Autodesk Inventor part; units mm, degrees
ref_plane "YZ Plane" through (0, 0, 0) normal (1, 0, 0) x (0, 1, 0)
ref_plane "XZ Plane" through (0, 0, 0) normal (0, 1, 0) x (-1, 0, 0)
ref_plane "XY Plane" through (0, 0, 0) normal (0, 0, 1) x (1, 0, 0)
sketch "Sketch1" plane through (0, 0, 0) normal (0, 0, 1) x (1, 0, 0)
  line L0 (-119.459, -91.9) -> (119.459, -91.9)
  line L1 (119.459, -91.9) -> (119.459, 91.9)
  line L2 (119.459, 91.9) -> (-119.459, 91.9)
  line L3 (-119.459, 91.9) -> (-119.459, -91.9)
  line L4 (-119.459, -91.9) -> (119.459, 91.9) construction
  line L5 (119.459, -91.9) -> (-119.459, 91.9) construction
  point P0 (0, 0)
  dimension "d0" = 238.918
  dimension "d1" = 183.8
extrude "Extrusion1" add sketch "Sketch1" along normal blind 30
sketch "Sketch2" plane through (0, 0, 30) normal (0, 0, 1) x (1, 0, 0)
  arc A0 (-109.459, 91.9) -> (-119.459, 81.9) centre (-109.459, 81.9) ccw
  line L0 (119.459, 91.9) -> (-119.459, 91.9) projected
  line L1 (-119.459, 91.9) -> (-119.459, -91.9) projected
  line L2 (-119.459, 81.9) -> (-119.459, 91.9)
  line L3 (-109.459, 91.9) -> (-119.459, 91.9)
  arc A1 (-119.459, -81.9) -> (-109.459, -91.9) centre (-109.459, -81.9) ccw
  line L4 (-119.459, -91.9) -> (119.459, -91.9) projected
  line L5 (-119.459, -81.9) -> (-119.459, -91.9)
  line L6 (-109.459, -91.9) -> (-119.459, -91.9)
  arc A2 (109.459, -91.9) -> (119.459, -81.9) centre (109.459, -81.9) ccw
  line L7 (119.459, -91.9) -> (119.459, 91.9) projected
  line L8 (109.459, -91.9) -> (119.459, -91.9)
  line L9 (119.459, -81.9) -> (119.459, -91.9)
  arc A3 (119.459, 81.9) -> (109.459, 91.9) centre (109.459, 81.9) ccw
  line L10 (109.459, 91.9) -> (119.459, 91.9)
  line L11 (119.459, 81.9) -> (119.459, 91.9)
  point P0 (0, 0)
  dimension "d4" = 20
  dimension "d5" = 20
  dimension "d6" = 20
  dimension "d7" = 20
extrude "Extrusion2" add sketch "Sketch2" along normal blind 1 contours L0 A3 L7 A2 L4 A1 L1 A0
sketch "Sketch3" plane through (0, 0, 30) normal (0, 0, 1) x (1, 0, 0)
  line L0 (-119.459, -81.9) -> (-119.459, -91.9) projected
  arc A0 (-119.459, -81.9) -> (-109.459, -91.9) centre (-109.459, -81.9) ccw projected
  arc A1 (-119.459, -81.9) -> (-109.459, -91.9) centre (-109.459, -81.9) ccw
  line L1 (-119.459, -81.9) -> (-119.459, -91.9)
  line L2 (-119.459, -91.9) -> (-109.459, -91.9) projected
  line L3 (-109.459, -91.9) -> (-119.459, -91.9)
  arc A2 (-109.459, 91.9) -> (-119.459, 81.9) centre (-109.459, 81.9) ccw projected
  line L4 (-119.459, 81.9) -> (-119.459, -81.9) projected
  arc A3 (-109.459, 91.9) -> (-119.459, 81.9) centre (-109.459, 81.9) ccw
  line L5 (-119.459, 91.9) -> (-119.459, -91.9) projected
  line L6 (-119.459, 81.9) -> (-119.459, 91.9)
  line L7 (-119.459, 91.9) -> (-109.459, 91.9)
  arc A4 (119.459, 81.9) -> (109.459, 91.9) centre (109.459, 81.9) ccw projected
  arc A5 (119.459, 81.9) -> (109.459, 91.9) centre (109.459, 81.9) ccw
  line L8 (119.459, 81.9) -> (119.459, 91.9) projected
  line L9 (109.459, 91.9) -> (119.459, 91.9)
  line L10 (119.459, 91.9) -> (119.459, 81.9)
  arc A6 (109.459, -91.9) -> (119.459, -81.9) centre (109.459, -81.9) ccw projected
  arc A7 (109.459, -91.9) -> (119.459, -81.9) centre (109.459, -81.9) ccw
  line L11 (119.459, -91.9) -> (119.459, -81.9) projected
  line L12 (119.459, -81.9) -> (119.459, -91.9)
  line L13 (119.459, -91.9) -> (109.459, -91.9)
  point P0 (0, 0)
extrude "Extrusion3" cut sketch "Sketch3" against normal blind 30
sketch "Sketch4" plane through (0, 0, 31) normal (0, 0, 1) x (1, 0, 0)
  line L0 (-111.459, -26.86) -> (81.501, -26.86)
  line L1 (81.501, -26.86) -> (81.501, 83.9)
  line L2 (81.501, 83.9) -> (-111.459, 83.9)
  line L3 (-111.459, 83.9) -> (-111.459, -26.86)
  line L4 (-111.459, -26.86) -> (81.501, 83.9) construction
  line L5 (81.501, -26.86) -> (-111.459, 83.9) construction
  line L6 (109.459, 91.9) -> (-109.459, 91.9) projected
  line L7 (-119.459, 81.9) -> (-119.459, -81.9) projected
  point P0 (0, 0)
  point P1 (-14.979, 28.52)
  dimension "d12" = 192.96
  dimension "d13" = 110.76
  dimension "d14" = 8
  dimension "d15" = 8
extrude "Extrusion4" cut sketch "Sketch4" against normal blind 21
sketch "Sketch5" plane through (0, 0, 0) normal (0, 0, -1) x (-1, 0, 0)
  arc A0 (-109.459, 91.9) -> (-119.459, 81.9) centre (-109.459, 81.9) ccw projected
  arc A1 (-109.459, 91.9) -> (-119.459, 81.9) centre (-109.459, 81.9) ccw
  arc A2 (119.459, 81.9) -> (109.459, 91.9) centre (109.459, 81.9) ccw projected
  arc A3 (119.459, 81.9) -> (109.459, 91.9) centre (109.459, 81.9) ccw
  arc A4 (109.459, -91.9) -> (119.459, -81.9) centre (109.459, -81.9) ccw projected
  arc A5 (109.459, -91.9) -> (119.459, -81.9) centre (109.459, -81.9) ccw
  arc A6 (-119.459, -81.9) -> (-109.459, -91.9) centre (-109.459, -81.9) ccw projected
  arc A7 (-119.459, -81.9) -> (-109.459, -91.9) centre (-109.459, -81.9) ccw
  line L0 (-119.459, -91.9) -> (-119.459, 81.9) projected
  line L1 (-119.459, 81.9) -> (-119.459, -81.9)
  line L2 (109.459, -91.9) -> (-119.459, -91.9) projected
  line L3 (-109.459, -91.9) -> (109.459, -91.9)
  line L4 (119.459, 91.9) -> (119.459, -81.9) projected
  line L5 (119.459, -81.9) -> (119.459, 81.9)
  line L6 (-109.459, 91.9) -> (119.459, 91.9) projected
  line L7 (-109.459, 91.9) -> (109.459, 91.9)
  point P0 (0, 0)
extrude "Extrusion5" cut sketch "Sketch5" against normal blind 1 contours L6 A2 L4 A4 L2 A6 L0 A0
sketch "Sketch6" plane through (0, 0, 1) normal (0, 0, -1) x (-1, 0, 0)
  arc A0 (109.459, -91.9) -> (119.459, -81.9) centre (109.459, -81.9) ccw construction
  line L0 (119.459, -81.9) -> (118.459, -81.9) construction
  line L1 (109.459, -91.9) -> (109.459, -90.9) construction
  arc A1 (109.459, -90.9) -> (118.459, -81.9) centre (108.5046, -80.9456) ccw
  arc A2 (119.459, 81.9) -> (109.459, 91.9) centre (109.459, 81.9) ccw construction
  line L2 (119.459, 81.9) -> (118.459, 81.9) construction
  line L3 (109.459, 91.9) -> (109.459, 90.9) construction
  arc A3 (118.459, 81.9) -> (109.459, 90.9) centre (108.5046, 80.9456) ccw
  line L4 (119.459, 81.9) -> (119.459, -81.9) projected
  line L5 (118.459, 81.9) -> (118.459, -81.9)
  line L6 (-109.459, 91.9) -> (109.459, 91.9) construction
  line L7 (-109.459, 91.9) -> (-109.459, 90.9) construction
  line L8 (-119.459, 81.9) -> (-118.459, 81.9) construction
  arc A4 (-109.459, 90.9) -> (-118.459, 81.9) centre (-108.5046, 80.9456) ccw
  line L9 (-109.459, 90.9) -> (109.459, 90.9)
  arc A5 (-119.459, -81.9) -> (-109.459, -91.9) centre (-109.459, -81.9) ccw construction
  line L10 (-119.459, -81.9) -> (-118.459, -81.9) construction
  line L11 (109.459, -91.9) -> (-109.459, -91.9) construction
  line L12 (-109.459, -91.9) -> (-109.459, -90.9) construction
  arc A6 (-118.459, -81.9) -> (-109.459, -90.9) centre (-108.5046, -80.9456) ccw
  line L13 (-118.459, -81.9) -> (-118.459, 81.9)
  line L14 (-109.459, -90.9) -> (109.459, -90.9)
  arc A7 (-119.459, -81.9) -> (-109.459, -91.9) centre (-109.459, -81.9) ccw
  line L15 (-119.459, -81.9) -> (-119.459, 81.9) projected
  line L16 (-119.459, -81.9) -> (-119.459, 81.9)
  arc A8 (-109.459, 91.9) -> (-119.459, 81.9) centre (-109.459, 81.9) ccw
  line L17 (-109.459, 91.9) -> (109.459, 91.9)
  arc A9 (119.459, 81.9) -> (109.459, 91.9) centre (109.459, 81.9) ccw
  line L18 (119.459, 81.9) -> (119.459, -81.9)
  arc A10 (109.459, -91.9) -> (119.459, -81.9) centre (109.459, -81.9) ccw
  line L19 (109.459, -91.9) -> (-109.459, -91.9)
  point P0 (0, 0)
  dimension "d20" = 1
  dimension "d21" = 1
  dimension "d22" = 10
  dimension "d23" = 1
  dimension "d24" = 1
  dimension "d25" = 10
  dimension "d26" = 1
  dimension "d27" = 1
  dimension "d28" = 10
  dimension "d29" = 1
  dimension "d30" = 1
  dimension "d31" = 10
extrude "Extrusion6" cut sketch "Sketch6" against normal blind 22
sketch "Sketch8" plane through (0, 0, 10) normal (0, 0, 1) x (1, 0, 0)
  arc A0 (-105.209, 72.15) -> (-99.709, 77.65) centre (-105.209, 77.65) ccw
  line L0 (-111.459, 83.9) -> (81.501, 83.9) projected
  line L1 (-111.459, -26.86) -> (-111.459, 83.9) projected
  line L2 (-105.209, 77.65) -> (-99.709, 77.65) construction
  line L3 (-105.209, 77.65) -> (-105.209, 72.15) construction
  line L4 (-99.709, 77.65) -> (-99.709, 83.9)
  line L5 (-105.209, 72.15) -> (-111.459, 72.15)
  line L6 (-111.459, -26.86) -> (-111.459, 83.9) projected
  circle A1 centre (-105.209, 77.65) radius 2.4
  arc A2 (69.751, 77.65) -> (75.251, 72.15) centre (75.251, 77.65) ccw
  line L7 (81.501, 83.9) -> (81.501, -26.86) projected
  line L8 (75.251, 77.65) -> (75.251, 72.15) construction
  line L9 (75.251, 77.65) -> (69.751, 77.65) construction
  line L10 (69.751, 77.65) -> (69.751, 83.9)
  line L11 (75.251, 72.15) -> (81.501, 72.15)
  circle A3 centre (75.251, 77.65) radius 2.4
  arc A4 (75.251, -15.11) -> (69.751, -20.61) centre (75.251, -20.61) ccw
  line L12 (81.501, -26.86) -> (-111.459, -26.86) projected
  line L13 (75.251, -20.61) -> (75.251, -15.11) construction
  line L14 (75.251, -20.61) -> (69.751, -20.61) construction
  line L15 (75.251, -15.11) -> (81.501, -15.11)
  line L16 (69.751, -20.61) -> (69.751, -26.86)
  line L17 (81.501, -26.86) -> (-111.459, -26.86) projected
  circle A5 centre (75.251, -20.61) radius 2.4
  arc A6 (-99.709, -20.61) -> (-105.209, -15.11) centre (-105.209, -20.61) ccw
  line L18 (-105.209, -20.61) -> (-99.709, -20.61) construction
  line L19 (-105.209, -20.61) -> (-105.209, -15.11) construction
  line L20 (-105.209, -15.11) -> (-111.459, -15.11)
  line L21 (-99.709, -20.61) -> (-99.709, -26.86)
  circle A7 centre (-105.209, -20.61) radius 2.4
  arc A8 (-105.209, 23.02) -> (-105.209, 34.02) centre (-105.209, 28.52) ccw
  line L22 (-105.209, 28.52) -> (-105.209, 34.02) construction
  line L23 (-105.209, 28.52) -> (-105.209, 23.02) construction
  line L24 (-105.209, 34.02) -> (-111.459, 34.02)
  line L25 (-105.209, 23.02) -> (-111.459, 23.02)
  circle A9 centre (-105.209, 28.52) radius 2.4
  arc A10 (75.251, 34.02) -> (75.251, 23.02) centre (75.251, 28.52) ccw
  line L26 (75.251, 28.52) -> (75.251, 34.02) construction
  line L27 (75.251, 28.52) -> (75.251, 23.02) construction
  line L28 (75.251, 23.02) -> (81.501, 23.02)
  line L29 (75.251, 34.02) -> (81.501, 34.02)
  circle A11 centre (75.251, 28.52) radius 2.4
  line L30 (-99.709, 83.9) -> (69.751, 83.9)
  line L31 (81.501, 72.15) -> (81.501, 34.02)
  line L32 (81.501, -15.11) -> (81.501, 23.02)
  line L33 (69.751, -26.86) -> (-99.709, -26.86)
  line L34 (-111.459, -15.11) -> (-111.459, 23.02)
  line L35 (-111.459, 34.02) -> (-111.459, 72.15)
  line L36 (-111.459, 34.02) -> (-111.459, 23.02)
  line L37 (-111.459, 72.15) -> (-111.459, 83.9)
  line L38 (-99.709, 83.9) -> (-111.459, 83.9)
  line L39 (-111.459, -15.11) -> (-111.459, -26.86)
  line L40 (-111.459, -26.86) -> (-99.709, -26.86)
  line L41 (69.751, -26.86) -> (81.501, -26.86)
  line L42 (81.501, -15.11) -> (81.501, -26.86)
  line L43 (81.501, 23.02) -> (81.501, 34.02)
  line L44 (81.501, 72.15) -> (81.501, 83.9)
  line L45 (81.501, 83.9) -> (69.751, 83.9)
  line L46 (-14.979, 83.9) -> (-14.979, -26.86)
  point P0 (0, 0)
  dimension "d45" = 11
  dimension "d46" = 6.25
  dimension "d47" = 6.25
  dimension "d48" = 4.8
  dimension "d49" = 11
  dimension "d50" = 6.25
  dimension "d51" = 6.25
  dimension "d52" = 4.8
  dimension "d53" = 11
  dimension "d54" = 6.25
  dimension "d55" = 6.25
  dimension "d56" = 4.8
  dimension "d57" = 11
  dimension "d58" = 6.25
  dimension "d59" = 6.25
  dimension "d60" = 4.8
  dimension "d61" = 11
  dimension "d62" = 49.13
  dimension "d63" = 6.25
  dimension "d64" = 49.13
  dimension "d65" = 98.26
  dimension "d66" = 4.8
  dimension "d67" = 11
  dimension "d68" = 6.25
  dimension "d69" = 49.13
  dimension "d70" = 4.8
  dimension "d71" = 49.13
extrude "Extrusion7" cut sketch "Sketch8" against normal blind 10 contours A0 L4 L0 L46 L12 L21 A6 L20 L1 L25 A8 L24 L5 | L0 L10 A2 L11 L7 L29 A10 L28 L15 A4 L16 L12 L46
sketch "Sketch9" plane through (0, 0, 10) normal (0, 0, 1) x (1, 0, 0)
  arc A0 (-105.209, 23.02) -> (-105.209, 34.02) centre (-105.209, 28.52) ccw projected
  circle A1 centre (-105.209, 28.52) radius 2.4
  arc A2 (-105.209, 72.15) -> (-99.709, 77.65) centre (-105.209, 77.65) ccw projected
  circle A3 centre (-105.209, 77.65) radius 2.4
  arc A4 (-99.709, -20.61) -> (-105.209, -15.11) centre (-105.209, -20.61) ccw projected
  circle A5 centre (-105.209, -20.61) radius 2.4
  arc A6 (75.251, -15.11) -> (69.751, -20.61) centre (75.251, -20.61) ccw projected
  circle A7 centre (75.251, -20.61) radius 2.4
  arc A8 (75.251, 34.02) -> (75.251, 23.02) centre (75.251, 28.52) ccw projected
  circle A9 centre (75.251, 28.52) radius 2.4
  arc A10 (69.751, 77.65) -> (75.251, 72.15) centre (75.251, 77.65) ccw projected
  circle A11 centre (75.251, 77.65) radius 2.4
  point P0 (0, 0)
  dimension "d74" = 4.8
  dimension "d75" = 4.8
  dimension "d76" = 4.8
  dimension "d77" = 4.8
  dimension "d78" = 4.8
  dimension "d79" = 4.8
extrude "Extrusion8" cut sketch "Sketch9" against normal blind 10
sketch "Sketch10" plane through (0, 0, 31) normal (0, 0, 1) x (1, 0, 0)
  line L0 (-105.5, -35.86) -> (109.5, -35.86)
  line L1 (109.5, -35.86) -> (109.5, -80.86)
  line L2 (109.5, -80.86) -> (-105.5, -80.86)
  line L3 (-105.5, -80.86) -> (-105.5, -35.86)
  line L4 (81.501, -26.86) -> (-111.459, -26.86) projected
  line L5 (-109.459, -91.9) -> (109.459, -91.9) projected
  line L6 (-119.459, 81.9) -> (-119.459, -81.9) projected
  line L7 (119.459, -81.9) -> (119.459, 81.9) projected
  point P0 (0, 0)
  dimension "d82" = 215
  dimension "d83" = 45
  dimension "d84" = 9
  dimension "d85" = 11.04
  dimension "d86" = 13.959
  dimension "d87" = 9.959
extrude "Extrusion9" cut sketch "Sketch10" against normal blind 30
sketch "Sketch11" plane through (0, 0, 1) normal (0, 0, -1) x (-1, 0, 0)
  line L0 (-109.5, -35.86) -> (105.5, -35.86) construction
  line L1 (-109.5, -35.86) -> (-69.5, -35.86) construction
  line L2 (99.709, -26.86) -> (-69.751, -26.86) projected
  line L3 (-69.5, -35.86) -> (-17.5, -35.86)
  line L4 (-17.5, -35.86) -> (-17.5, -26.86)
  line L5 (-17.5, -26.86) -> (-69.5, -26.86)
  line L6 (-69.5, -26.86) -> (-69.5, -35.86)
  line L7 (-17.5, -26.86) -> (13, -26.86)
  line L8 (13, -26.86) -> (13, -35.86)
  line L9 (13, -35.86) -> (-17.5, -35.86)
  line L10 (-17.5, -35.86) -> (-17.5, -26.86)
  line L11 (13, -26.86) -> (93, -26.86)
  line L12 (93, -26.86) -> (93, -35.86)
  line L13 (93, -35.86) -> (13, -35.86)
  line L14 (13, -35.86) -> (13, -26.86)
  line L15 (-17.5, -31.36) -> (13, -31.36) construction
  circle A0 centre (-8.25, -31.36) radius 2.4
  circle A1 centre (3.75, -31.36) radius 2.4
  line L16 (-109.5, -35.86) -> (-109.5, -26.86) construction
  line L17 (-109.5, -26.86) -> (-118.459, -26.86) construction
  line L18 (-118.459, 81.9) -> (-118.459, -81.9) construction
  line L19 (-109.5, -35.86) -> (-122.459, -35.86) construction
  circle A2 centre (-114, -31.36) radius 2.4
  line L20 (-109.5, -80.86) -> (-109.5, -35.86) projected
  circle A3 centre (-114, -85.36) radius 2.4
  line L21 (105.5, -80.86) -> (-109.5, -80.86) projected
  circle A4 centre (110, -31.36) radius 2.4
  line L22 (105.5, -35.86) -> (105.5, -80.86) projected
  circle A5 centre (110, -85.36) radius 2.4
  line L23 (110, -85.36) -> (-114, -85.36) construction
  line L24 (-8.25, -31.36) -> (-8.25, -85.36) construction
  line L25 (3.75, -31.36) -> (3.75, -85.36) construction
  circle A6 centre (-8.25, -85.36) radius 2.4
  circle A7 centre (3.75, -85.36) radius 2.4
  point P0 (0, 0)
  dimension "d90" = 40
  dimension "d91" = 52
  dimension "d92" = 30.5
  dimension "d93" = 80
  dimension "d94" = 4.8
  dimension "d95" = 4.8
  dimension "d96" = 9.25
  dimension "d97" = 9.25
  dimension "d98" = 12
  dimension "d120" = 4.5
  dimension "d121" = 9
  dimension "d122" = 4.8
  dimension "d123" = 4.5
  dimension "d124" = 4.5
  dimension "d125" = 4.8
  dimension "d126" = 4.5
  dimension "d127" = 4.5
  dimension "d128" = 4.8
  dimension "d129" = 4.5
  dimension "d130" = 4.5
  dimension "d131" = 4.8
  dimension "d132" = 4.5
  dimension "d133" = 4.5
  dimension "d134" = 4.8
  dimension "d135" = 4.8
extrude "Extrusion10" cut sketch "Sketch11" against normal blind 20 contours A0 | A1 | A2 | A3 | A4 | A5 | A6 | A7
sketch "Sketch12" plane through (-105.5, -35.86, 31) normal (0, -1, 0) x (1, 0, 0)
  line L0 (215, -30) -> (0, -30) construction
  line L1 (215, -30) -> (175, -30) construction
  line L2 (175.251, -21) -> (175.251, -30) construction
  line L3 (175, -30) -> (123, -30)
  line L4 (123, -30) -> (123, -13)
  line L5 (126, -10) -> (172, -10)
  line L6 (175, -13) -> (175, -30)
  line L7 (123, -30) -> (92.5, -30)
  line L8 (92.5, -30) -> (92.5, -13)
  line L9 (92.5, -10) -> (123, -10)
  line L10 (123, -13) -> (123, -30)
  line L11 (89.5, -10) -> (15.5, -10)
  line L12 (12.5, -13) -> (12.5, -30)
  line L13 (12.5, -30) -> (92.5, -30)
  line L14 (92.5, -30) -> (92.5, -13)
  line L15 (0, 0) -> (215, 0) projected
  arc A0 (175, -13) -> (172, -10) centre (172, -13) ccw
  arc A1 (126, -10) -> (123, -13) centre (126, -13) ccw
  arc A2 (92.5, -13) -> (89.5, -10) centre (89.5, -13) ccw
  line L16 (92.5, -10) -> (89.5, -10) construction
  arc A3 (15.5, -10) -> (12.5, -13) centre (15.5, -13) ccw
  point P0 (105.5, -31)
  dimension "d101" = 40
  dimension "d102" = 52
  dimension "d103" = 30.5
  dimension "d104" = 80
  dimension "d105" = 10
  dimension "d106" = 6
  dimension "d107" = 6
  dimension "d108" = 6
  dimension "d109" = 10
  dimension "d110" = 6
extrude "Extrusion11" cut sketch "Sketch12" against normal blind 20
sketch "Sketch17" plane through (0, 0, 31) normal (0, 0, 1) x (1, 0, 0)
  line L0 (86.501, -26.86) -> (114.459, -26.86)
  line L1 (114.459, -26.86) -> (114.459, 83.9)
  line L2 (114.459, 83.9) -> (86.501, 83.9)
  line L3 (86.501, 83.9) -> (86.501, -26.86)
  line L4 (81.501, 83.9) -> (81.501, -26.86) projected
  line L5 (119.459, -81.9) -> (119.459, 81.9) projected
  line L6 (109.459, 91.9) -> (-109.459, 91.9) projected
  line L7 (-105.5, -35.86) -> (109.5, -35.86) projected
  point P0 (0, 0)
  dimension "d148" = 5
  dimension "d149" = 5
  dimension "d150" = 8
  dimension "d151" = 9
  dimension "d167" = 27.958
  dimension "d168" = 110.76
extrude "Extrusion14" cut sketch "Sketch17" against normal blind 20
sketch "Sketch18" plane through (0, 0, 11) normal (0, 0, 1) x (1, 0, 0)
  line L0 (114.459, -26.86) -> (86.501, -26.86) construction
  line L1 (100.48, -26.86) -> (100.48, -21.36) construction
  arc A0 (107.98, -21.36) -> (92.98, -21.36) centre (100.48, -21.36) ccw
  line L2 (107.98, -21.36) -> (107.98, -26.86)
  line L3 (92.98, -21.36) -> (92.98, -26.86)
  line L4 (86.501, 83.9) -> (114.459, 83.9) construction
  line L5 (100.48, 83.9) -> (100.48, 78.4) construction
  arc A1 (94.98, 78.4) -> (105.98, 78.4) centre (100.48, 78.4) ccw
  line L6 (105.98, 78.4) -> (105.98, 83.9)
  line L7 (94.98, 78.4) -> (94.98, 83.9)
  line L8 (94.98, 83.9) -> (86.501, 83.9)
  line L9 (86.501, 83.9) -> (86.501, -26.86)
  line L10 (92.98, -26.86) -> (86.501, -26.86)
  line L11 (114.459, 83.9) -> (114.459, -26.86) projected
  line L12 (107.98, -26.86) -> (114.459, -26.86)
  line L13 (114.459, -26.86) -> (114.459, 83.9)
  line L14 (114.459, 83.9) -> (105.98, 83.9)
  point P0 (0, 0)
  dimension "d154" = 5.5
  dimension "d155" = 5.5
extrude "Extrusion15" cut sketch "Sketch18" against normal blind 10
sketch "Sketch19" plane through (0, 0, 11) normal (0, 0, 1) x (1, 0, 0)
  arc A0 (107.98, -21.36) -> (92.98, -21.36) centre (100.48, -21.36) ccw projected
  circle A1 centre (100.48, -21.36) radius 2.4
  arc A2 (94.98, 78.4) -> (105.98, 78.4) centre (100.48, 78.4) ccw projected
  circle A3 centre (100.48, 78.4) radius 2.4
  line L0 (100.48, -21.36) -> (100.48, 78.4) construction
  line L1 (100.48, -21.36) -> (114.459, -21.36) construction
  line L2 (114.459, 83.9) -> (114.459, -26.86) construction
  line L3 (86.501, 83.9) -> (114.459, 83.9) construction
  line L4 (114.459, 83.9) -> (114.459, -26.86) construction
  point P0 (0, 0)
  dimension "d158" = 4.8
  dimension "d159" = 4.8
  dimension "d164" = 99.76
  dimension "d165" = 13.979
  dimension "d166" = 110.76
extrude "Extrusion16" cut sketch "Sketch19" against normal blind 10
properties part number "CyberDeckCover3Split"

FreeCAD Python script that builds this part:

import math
import FreeCAD as App
import Part
import Sketcher
from FreeCAD import Vector


def add_polygon(sketch, points):
    """Adds a closed chain of lines whose ends are joined by coincident constraints."""
    first, n = sketch.GeometryCount, len(points)
    for a, b in zip(points, points[1:] + points[:1]):
        sketch.addGeometry(Part.LineSegment(App.Vector(*a, 0), App.Vector(*b, 0)), False)
    for i in range(n):
        sketch.addConstraint(Sketcher.Constraint("Coincident", first + i, 2, first + (i + 1) % n, 1))

doc = App.newDocument("Part")
body = doc.addObject("PartDesign::Body", "Body")

# Sketch on XY plane
sketch1 = doc.addObject("Sketcher::SketchObject", "Sketch")
body.addObject(sketch1)
sketch1.AttachmentSupport = (doc.XY_Plane, [""])
sketch1.MapMode = "FlatFace"
add_polygon(sketch1, [(-119, 92), (-119, -92), (119, -92), (119, 92)])  # lines 0-3
sketch1.addConstraint([
    Sketcher.Constraint("Vertical", 0),
    Sketcher.Constraint("Horizontal", 1),
    Sketcher.Constraint("Vertical", 2),
    Sketcher.Constraint("Horizontal", 3),
    Sketcher.Constraint("Symmetric", 0, 2, 2, 2, -1, 1),
    Sketcher.Constraint("DistanceY", 0, 2, 0, 1, 183.8),
    Sketcher.Constraint("DistanceX", 1, 1, 1, 2, 238.918),
])
pad1 = doc.addObject("PartDesign::Pad", "Pad")
body.addObject(pad1)
pad1.Profile = sketch1
pad1.Length = 30

# Sketch on XY plane
sketch2 = doc.addObject("Sketcher::SketchObject", "Sketch001")
body.addObject(sketch2)
sketch2.AttachmentSupport = (doc.XY_Plane, [""])
sketch2.MapMode = "FlatFace"
sketch2.AttachmentOffset = App.Placement(Vector(0, 0, 30), App.Rotation())
sketch2.addGeometry([
    Part.LineSegment(Vector(109, 92, 0), Vector(-109, 92, 0)),  # 0
    Part.ArcOfCircle(Part.Circle(Vector(-109, 82, 0), Vector(0, 0, 1), 10), math.radians(90), math.radians(180)),  # 1
    Part.LineSegment(Vector(-119, 82, 0), Vector(-119, -82, 0)),  # 2
    Part.ArcOfCircle(Part.Circle(Vector(-109, -82, 0), Vector(0, 0, 1), 10), math.radians(180), math.radians(270)),  # 3
    Part.LineSegment(Vector(-109, -92, 0), Vector(109, -92, 0)),  # 4
    Part.ArcOfCircle(Part.Circle(Vector(109, -82, 0), Vector(0, 0, 1), 10), math.radians(-90), math.radians(0)),  # 5
    Part.LineSegment(Vector(119, -82, 0), Vector(119, 82, 0)),  # 6
    Part.ArcOfCircle(Part.Circle(Vector(109, 82, 0), Vector(0, 0, 1), 10), math.radians(0), math.radians(90)),  # 7
], False)
sketch2.addConstraint([
    Sketcher.Constraint("Tangent", 0, 2, 1, 1),
    Sketcher.Constraint("Tangent", 1, 2, 2, 1),
    Sketcher.Constraint("Tangent", 2, 2, 3, 1),
    Sketcher.Constraint("Tangent", 3, 2, 4, 1),
    Sketcher.Constraint("Tangent", 4, 2, 5, 1),
    Sketcher.Constraint("Tangent", 5, 2, 6, 1),
    Sketcher.Constraint("Tangent", 6, 2, 7, 1),
    Sketcher.Constraint("Tangent", 7, 2, 0, 1),
    Sketcher.Constraint("Horizontal", 0),
    Sketcher.Constraint("Vertical", 2),
    Sketcher.Constraint("Horizontal", 4),
    Sketcher.Constraint("Vertical", 6),
    Sketcher.Constraint("Equal", 1, 3),
    Sketcher.Constraint("Equal", 3, 5),
    Sketcher.Constraint("Equal", 5, 7),
    Sketcher.Constraint("Symmetric", 1, 3, 5, 3, -1, 1),
    Sketcher.Constraint("Radius", 1, 10.0),
    Sketcher.Constraint("DistanceY", 2, 2, 2, 1, 163.8),
    Sketcher.Constraint("DistanceX", 0, 2, 0, 1, 218.918),
])
pad2 = doc.addObject("PartDesign::Pad", "Pad001")
body.addObject(pad2)
pad2.Profile = sketch2
pad2.Length = 1

# Sketch on XY plane
sketch3 = doc.addObject("Sketcher::SketchObject", "Sketch002")
body.addObject(sketch3)
sketch3.AttachmentSupport = (doc.XY_Plane, [""])
sketch3.MapMode = "FlatFace"
sketch3.AttachmentOffset = App.Placement(Vector(0, 0, 30), App.Rotation())
sketch3.addGeometry([
    Part.ArcOfCircle(Part.Circle(Vector(-109, -82, 0), Vector(0, 0, 1), 10), math.radians(180), math.radians(270)),  # 0
    Part.LineSegment(Vector(-119, -82, 0), Vector(-119, -92, 0)),  # 1
    Part.LineSegment(Vector(-119, -92, 0), Vector(-109, -92, 0)),  # 2
    Part.LineSegment(Vector(-119, 92, 0), Vector(-119, 82, 0)),  # 3
    Part.ArcOfCircle(Part.Circle(Vector(-109, 82, 0), Vector(0, 0, 1), 10), math.radians(90), math.radians(180)),  # 4
    Part.LineSegment(Vector(-109, 92, 0), Vector(-119, 92, 0)),  # 5
    Part.ArcOfCircle(Part.Circle(Vector(109, 82, 0), Vector(0, 0, 1), 10), math.radians(0), math.radians(90)),  # 6
    Part.LineSegment(Vector(119, 82, 0), Vector(119, 92, 0)),  # 7
    Part.LineSegment(Vector(119, 92, 0), Vector(109, 92, 0)),  # 8
    Part.ArcOfCircle(Part.Circle(Vector(109, -82, 0), Vector(0, 0, 1), 10), math.radians(-90), math.radians(0)),  # 9
    Part.LineSegment(Vector(109, -92, 0), Vector(119, -92, 0)),  # 10
    Part.LineSegment(Vector(119, -92, 0), Vector(119, -82, 0)),  # 11
], False)
sketch3.addConstraint([
    Sketcher.Constraint("Tangent", 0, 1, 1, 1),
    Sketcher.Constraint("Coincident", 1, 2, 2, 1),
    Sketcher.Constraint("Tangent", 2, 2, 0, 2),
    Sketcher.Constraint("Tangent", 3, 2, 4, 2),
    Sketcher.Constraint("Tangent", 4, 1, 5, 1),
    Sketcher.Constraint("Coincident", 5, 2, 3, 1),
    Sketcher.Constraint("Tangent", 6, 1, 7, 1),
    Sketcher.Constraint("Coincident", 7, 2, 8, 1),
    Sketcher.Constraint("Tangent", 8, 2, 6, 2),
    Sketcher.Constraint("Tangent", 9, 1, 10, 1),
    Sketcher.Constraint("Coincident", 10, 2, 11, 1),
    Sketcher.Constraint("Tangent", 11, 2, 9, 2),
    Sketcher.Constraint("Vertical", 1),
    Sketcher.Constraint("Horizontal", 2),
    Sketcher.Constraint("Vertical", 3),
    Sketcher.Constraint("Horizontal", 5),
    Sketcher.Constraint("Vertical", 7),
    Sketcher.Constraint("Horizontal", 8),
    Sketcher.Constraint("Horizontal", 10),
    Sketcher.Constraint("Vertical", 11),
    Sketcher.Constraint("Equal", 0, 4),
    Sketcher.Constraint("Equal", 4, 6),
    Sketcher.Constraint("Equal", 6, 9),
    Sketcher.Constraint("Symmetric", 0, 3, 6, 3, -1, 1),
    Sketcher.Constraint("Symmetric", 4, 3, 9, 3, -1, 1),
    Sketcher.Constraint("Symmetric", 4, 3, 6, 3, -2),
    Sketcher.Constraint("Radius", 0, 10.0),
    Sketcher.Constraint("DistanceY", 0, 3, -1, 1, 81.9),
    Sketcher.Constraint("DistanceX", 0, 3, -1, 1, 109.459),
])
pocket1 = doc.addObject("PartDesign::Pocket", "Pocket")
body.addObject(pocket1)
pocket1.Profile = sketch3
pocket1.Length = 30

# Sketch on XY plane
sketch4 = doc.addObject("Sketcher::SketchObject", "Sketch003")
body.addObject(sketch4)
sketch4.AttachmentSupport = (doc.XY_Plane, [""])
sketch4.MapMode = "FlatFace"
sketch4.AttachmentOffset = App.Placement(Vector(0, 0, 31), App.Rotation())
add_polygon(sketch4, [(-111, 84), (-111, -27), (82, -27), (82, 84)])  # lines 0-3
sketch4.addConstraint([
    Sketcher.Constraint("Vertical", 0),
    Sketcher.Constraint("Horizontal", 1),
    Sketcher.Constraint("Vertical", 2),
    Sketcher.Constraint("Horizontal", 3),
    Sketcher.Constraint("DistanceX", 1, 1, 1, 2, 192.96),
    Sketcher.Constraint("DistanceY", 0, 2, 0, 1, 110.76),
    Sketcher.Constraint("DistanceY", -1, 1, 2, 2, 83.9),
    Sketcher.Constraint("DistanceX", 0, 2, -1, 1, 111.459),
])
pocket2 = doc.addObject("PartDesign::Pocket", "Pocket001")
body.addObject(pocket2)
pocket2.Profile = sketch4
pocket2.Length = 21

# Sketch on XY plane
sketch5 = doc.addObject("Sketcher::SketchObject", "Sketch004")
body.addObject(sketch5)
sketch5.AttachmentSupport = (doc.XY_Plane, [""])
sketch5.MapMode = "FlatFace"
sketch5.addGeometry([
    Part.LineSegment(Vector(-109, 92, 0), Vector(109, 92, 0)),  # 0
    Part.ArcOfCircle(Part.Circle(Vector(109, 82, 0), Vector(0, 0, 1), 10), math.radians(0), math.radians(90)),  # 1
    Part.LineSegment(Vector(119, 82, 0), Vector(119, -82, 0)),  # 2
    Part.ArcOfCircle(Part.Circle(Vector(109, -82, 0), Vector(0, 0, 1), 10), math.radians(-90), math.radians(0)),  # 3
    Part.LineSegment(Vector(109, -92, 0), Vector(-109, -92, 0)),  # 4
    Part.ArcOfCircle(Part.Circle(Vector(-109, -82, 0), Vector(0, 0, 1), 10), math.radians(180), math.radians(270)),  # 5
    Part.LineSegment(Vector(-119, -82, 0), Vector(-119, 82, 0)),  # 6
    Part.ArcOfCircle(Part.Circle(Vector(-109, 82, 0), Vector(0, 0, 1), 10), math.radians(90), math.radians(180)),  # 7
], False)
sketch5.addConstraint([
    Sketcher.Constraint("Tangent", 0, 2, 1, 2),
    Sketcher.Constraint("Tangent", 1, 1, 2, 1),
    Sketcher.Constraint("Tangent", 2, 2, 3, 2),
    Sketcher.Constraint("Tangent", 3, 1, 4, 1),
    Sketcher.Constraint("Tangent", 4, 2, 5, 2),
    Sketcher.Constraint("Tangent", 5, 1, 6, 1),
    Sketcher.Constraint("Tangent", 6, 2, 7, 2),
    Sketcher.Constraint("Tangent", 7, 1, 0, 1),
    Sketcher.Constraint("Horizontal", 0),
    Sketcher.Constraint("Vertical", 2),
    Sketcher.Constraint("Horizontal", 4),
    Sketcher.Constraint("Vertical", 6),
    Sketcher.Constraint("Equal", 1, 3),
    Sketcher.Constraint("Equal", 3, 5),
    Sketcher.Constraint("Equal", 5, 7),
    Sketcher.Constraint("Symmetric", 1, 3, 5, 3, -1, 1),
    Sketcher.Constraint("Radius", 1, 10.0),
    Sketcher.Constraint("DistanceY", 2, 2, 2, 1, 163.8),
    Sketcher.Constraint("DistanceX", 0, 1, 0, 2, 218.918),
])
pocket3 = doc.addObject("PartDesign::Pocket", "Pocket002")
body.addObject(pocket3)
pocket3.Profile = sketch5
pocket3.Length = 1
pocket3.Reversed = True

# Sketch on XY plane
sketch6 = doc.addObject("Sketcher::SketchObject", "Sketch005")
body.addObject(sketch6)
sketch6.AttachmentSupport = (doc.XY_Plane, [""])
sketch6.MapMode = "FlatFace"
sketch6.AttachmentOffset = App.Placement(Vector(0, 0, 1), App.Rotation())
sketch6.addGeometry([
    Part.LineSegment(Vector(-119, -82, 0), Vector(-119, 82, 0)),  # 0
    Part.ArcOfCircle(Part.Circle(Vector(-109, 82, 0), Vector(0, 0, 1), 10), math.radians(90), math.radians(180)),  # 1
    Part.LineSegment(Vector(-109, 92, 0), Vector(109, 92, 0)),  # 2
    Part.ArcOfCircle(Part.Circle(Vector(109, 82, 0), Vector(0, 0, 1), 10), math.radians(0), math.radians(90)),  # 3
    Part.LineSegment(Vector(119, 82, 0), Vector(119, -82, 0)),  # 4
    Part.ArcOfCircle(Part.Circle(Vector(109, -82, 0), Vector(0, 0, 1), 10), math.radians(-90), math.radians(0)),  # 5
    Part.LineSegment(Vector(109, -92, 0), Vector(-109, -92, 0)),  # 6
    Part.ArcOfCircle(Part.Circle(Vector(-109, -82, 0), Vector(0, 0, 1), 10), math.radians(180), math.radians(270)),  # 7
    Part.ArcOfCircle(Part.Circle(Vector(-109, -81, 0), Vector(0, 0, 1), 10), math.radians(-175), math.radians(-95)),  # 8
    Part.LineSegment(Vector(-109, -91, 0), Vector(109, -91, 0)),  # 9
    Part.ArcOfCircle(Part.Circle(Vector(109, -81, 0), Vector(0, 0, 1), 10), math.radians(-85), math.radians(-5)),  # 10
    Part.LineSegment(Vector(118, -82, 0), Vector(118, 82, 0)),  # 11
    Part.ArcOfCircle(Part.Circle(Vector(109, 81, 0), Vector(0, 0, 1), 10), math.radians(5), math.radians(85)),  # 12
    Part.LineSegment(Vector(109, 91, 0), Vector(-109, 91, 0)),  # 13
    Part.ArcOfCircle(Part.Circle(Vector(-109, 81, 0), Vector(0, 0, 1), 10), math.radians(95), math.radians(175)),  # 14
    Part.LineSegment(Vector(-118, 82, 0), Vector(-118, -82, 0)),  # 15
], False)
sketch6.addConstraint([
    Sketcher.Constraint("Tangent", 0, 2, 1, 2),
    Sketcher.Constraint("Tangent", 1, 1, 2, 1),
    Sketcher.Constraint("Tangent", 2, 2, 3, 2),
    Sketcher.Constraint("Tangent", 3, 1, 4, 1),
    Sketcher.Constraint("Tangent", 4, 2, 5, 2),
    Sketcher.Constraint("Tangent", 5, 1, 6, 1),
    Sketcher.Constraint("Tangent", 6, 2, 7, 2),
    Sketcher.Constraint("Tangent", 7, 1, 0, 1),
    Sketcher.Constraint("Coincident", 8, 2, 9, 1),
    Sketcher.Constraint("Coincident", 9, 2, 10, 1),
    Sketcher.Constraint("Coincident", 10, 2, 11, 1),
    Sketcher.Constraint("Coincident", 11, 2, 12, 1),
    Sketcher.Constraint("Coincident", 12, 2, 13, 1),
    Sketcher.Constraint("Coincident", 13, 2, 14, 1),
    Sketcher.Constraint("Coincident", 14, 2, 15, 1),
    Sketcher.Constraint("Coincident", 15, 2, 8, 1),
    Sketcher.Constraint("Vertical", 0),
    Sketcher.Constraint("Horizontal", 2),
    Sketcher.Constraint("Vertical", 4),
    Sketcher.Constraint("Horizontal", 6),
    Sketcher.Constraint("Horizontal", 9),
    Sketcher.Constraint("Vertical", 11),
    Sketcher.Constraint("Horizontal", 13),
    Sketcher.Constraint("Vertical", 15),
    Sketcher.Constraint("Equal", 1, 3),
    Sketcher.Constraint("Equal", 3, 5),
    Sketcher.Constraint("Equal", 5, 7),
    Sketcher.Constraint("Equal", 7, 8),
    Sketcher.Constraint("Equal", 8, 10),
    Sketcher.Constraint("Equal", 10, 12),
    Sketcher.Constraint("Equal", 12, 14),
    Sketcher.Constraint("Symmetric", 1, 3, 5, 3, -1, 1),
    Sketcher.Constraint("Symmetric", 8, 3, 12, 3, -1, 1),
    Sketcher.Constraint("Symmetric", 10, 3, 14, 3, -1, 1),
    Sketcher.Constraint("Symmetric", 8, 3, 10, 3, -2),
    Sketcher.Constraint("Horizontal", 7, 1, 10, 2),
    Sketcher.Constraint("Horizontal", 11, 2, 14, 2),
    Sketcher.Constraint("Vertical", 6, 2, 8, 2),
    Sketcher.Constraint("Vertical", 9, 2, 12, 2),
    Sketcher.Constraint("Radius", 1, 10.0),
    Sketcher.Constraint("DistanceY", 6, 2, 8, 2, 1.0),
    Sketcher.Constraint("DistanceX", 10, 2, 4, 2, 1.0),
    Sketcher.Constraint("DistanceY", 0, 1, 0, 2, 163.8),
    Sketcher.Constraint("DistanceX", 2, 1, 2, 2, 218.918),
])
pocket4 = doc.addObject("PartDesign::Pocket", "Pocket003")
body.addObject(pocket4)
pocket4.Profile = sketch6
pocket4.Length = 22
pocket4.Reversed = True

# Sketch on XY plane
sketch7 = doc.addObject("Sketcher::SketchObject", "Sketch006")
body.addObject(sketch7)
sketch7.AttachmentSupport = (doc.XY_Plane, [""])
sketch7.MapMode = "FlatFace"
sketch7.AttachmentOffset = App.Placement(Vector(0, 0, 10), App.Rotation())
sketch7.addGeometry([
    Part.ArcOfCircle(Part.Circle(Vector(-105, 78, 0), Vector(0, 0, 1), 6), math.radians(-90), math.radians(0)),  # 0
    Part.LineSegment(Vector(-105, 72, 0), Vector(-111, 72, 0)),  # 1
    Part.LineSegment(Vector(-111, 72, 0), Vector(-111, 34, 0)),  # 2
    Part.LineSegment(Vector(-111, 34, 0), Vector(-105, 34, 0)),  # 3
    Part.ArcOfCircle(Part.Circle(Vector(-105, 29, 0), Vector(0, 0, 1), 6), math.radians(-90), math.radians(90)),  # 4
    Part.LineSegment(Vector(-105, 23, 0), Vector(-111, 23, 0)),  # 5
    Part.LineSegment(Vector(-111, 23, 0), Vector(-111, -15, 0)),  # 6
    Part.LineSegment(Vector(-111, -15, 0), Vector(-105, -15, 0)),  # 7
    Part.ArcOfCircle(Part.Circle(Vector(-105, -21, 0), Vector(0, 0, 1), 6), math.radians(0), math.radians(90)),  # 8
    Part.LineSegment(Vector(-100, -21, 0), Vector(-100, -27, 0)),  # 9
    Part.LineSegment(Vector(-100, -27, 0), Vector(70, -27, 0)),  # 10
    Part.LineSegment(Vector(70, -27, 0), Vector(70, -21, 0)),  # 11
    Part.ArcOfCircle(Part.Circle(Vector(75, -21, 0), Vector(0, 0, 1), 6), math.radians(90), math.radians(180)),  # 12
    Part.LineSegment(Vector(75, -15, 0), Vector(82, -15, 0)),  # 13
    Part.LineSegment(Vector(82, -15, 0), Vector(82, 23, 0)),  # 14
    Part.LineSegment(Vector(82, 23, 0), Vector(75, 23, 0)),  # 15
    Part.ArcOfCircle(Part.Circle(Vector(75, 29, 0), Vector(0, 0, 1), 6), math.radians(90), math.radians(270)),  # 16
    Part.LineSegment(Vector(75, 34, 0), Vector(82, 34, 0)),  # 17
    Part.LineSegment(Vector(82, 34, 0), Vector(82, 72, 0)),  # 18
    Part.LineSegment(Vector(82, 72, 0), Vector(75, 72, 0)),  # 19
    Part.ArcOfCircle(Part.Circle(Vector(75, 78, 0), Vector(0, 0, 1), 6), math.radians(180), math.radians(270)),  # 20
    Part.LineSegment(Vector(70, 78, 0), Vector(70, 84, 0)),  # 21
    Part.LineSegment(Vector(70, 84, 0), Vector(-100, 84, 0)),  # 22
    Part.LineSegment(Vector(-100, 84, 0), Vector(-100, 78, 0)),  # 23
], False)
sketch7.addConstraint([
    Sketcher.Constraint("Tangent", 0, 1, 1, 1),
    Sketcher.Constraint("Coincident", 1, 2, 2, 1),
    Sketcher.Constraint("Coincident", 2, 2, 3, 1),
    Sketcher.Constraint("Tangent", 3, 2, 4, 2),
    Sketcher.Constraint("Tangent", 4, 1, 5, 1),
    Sketcher.Constraint("Coincident", 5, 2, 6, 1),
    Sketcher.Constraint("Coincident", 6, 2, 7, 1),
    Sketcher.Constraint("Tangent", 7, 2, 8, 2),
    Sketcher.Constraint("Tangent", 8, 1, 9, 1),
    Sketcher.Constraint("Coincident", 9, 2, 10, 1),
    Sketcher.Constraint("Coincident", 10, 2, 11, 1),
    Sketcher.Constraint("Tangent", 11, 2, 12, 2),
    Sketcher.Constraint("Tangent", 12, 1, 13, 1),
    Sketcher.Constraint("Coincident", 13, 2, 14, 1),
    Sketcher.Constraint("Coincident", 14, 2, 15, 1),
    Sketcher.Constraint("Tangent", 15, 2, 16, 2),
    Sketcher.Constraint("Tangent", 16, 1, 17, 1),
    Sketcher.Constraint("Coincident", 17, 2, 18, 1),
    Sketcher.Constraint("Coincident", 18, 2, 19, 1),
    Sketcher.Constraint("Tangent", 19, 2, 20, 2),
    Sketcher.Constraint("Tangent", 20, 1, 21, 1),
    Sketcher.Constraint("Coincident", 21, 2, 22, 1),
    Sketcher.Constraint("Coincident", 22, 2, 23, 1),
    Sketcher.Constraint("Tangent", 23, 2, 0, 2),
    Sketcher.Constraint("Horizontal", 1),
    Sketcher.Constraint("Vertical", 2),
    Sketcher.Constraint("Horizontal", 3),
    Sketcher.Constraint("Horizontal", 5),
    Sketcher.Constraint("Vertical", 6),
    Sketcher.Constraint("Horizontal", 7),
    Sketcher.Constraint("Vertical", 9),
    Sketcher.Constraint("Horizontal", 10),
    Sketcher.Constraint("Vertical", 11),
    Sketcher.Constraint("Horizontal", 13),
    Sketcher.Constraint("Vertical", 14),
    Sketcher.Constraint("Horizontal", 15),
    Sketcher.Constraint("Horizontal", 17),
    Sketcher.Constraint("Vertical", 18),
    Sketcher.Constraint("Horizontal", 19),
    Sketcher.Constraint("Vertical", 21),
    Sketcher.Constraint("Horizontal", 22),
    Sketcher.Constraint("Vertical", 23),
    Sketcher.Constraint("Equal", 0, 4),
    Sketcher.Constraint("Equal", 4, 8),
    Sketcher.Constraint("Equal", 8, 12),
    Sketcher.Constraint("Equal", 12, 16),
    Sketcher.Constraint("Equal", 16, 20),
    Sketcher.Constraint("Horizontal", 8, 3, 12, 3),
    Sketcher.Constraint("Horizontal", 4, 3, 16, 3),
    Sketcher.Constraint("Horizontal", 0, 3, 20, 3),
    Sketcher.Constraint("Vertical", 0, 3, 4, 3),
    Sketcher.Constraint("Vertical", 4, 3, 8, 3),
    Sketcher.Constraint("Vertical", 12, 3, 16, 3),
    Sketcher.Constraint("Vertical", 16, 3, 20, 3),
    Sketcher.Constraint("Vertical", 2, 2, 5, 2),
    Sketcher.Constraint("Vertical", 14, 2, 17, 2),
    Sketcher.Constraint("Equal", 7, 13),
    Sketcher.Constraint("Equal", 2, 6),
    Sketcher.Constraint("Equal", 19, 9),
    Sketcher.Constraint("Equal", 11, 21),
    Sketcher.Constraint("Radius", 0, 5.5),
    Sketcher.Constraint("DistanceX", 1, 2, 1, 1, 6.25),
    Sketcher.Constraint("DistanceY", 4, 3, 0, 3, 49.13),
    Sketcher.Constraint("DistanceX", 10, 1, 10, 2, 169.46),
    Sketcher.Constraint("DistanceY", -1, 1, 21, 2, 83.9),
    Sketcher.Constraint("DistanceX", 0, 3, -1, 1, 105.209),
])
pocket5 = doc.addObject("PartDesign::Pocket", "Pocket004")
body.addObject(pocket5)
pocket5.Profile = sketch7
pocket5.Length = 10

# Sketch on XY plane
sketch8 = doc.addObject("Sketcher::SketchObject", "Sketch007")
body.addObject(sketch8)
sketch8.AttachmentSupport = (doc.XY_Plane, [""])
sketch8.MapMode = "FlatFace"
sketch8.AttachmentOffset = App.Placement(Vector(0, 0, 10), App.Rotation())
sketch8.addGeometry([
    Part.Circle(Vector(-105.2, 28.5, 0), Vector(0, 0, 1), 2.4),  # 0
    Part.Circle(Vector(-105.2, 77.7, 0), Vector(0, 0, 1), 2.4),  # 1
    Part.Circle(Vector(-105.2, -20.6, 0), Vector(0, 0, 1), 2.4),  # 2
    Part.Circle(Vector(75.3, -20.6, 0), Vector(0, 0, 1), 2.4),  # 3
    Part.Circle(Vector(75.3, 28.5, 0), Vector(0, 0, 1), 2.4),  # 4
    Part.Circle(Vector(75.3, 77.7, 0), Vector(0, 0, 1), 2.4),  # 5
], False)
sketch8.addConstraint([
    Sketcher.Constraint("Equal", 0, 1),
    Sketcher.Constraint("Equal", 1, 2),
    Sketcher.Constraint("Equal", 2, 3),
    Sketcher.Constraint("Equal", 3, 4),
    Sketcher.Constraint("Equal", 4, 5),
    Sketcher.Constraint("Horizontal", 2, 3, 3, 3),
    Sketcher.Constraint("Horizontal", 0, 3, 4, 3),
    Sketcher.Constraint("Horizontal", 1, 3, 5, 3),
    Sketcher.Constraint("Vertical", 0, 3, 1, 3),
    Sketcher.Constraint("Vertical", 1, 3, 2, 3),
    Sketcher.Constraint("Vertical", 3, 3, 4, 3),
    Sketcher.Constraint("Vertical", 4, 3, 5, 3),
    Sketcher.Constraint("Diameter", 0, 4.8),
    Sketcher.Constraint("DistanceY", -1, 1, 0, 3, 28.52),
    Sketcher.Constraint("DistanceY", -1, 1, 1, 3, 77.65),
    Sketcher.Constraint("DistanceY", 2, 3, -1, 1, 20.61),
    Sketcher.Constraint("DistanceX", 2, 3, 3, 3, 180.46),
    Sketcher.Constraint("DistanceX", 0, 3, -1, 1, 105.209),
])
pocket6 = doc.addObject("PartDesign::Pocket", "Pocket005")
body.addObject(pocket6)
pocket6.Profile = sketch8
pocket6.Length = 10

# Sketch on XY plane
sketch9 = doc.addObject("Sketcher::SketchObject", "Sketch008")
body.addObject(sketch9)
sketch9.AttachmentSupport = (doc.XY_Plane, [""])
sketch9.MapMode = "FlatFace"
sketch9.AttachmentOffset = App.Placement(Vector(0, 0, 31), App.Rotation())
add_polygon(sketch9, [(110, -36), (-106, -36), (-106, -81), (110, -81)])  # lines 0-3
sketch9.addConstraint([
    Sketcher.Constraint("Horizontal", 0),
    Sketcher.Constraint("Vertical", 1),
    Sketcher.Constraint("Horizontal", 2),
    Sketcher.Constraint("Vertical", 3),
    Sketcher.Constraint("DistanceX", 0, 2, 0, 1, 215.0),
    Sketcher.Constraint("DistanceY", 1, 2, 1, 1, 45.0),
    Sketcher.Constraint("DistanceX", 0, 2, -1, 1, 105.5),
    Sketcher.Constraint("DistanceY", 0, 2, -1, 1, 35.86),
])
pocket7 = doc.addObject("PartDesign::Pocket", "Pocket006")
body.addObject(pocket7)
pocket7.Profile = sketch9
pocket7.Length = 30

# Sketch on XY plane
sketch10 = doc.addObject("Sketcher::SketchObject", "Sketch009")
body.addObject(sketch10)
sketch10.AttachmentSupport = (doc.XY_Plane, [""])
sketch10.MapMode = "FlatFace"
sketch10.AttachmentOffset = App.Placement(Vector(0, 0, 1), App.Rotation())
sketch10.addGeometry([
    Part.Circle(Vector(8.2, -31.4, 0), Vector(0, 0, 1), 2.4),  # 0
    Part.Circle(Vector(-3.8, -31.4, 0), Vector(0, 0, 1), 2.4),  # 1
    Part.Circle(Vector(114, -31.4, 0), Vector(0, 0, 1), 2.4),  # 2
    Part.Circle(Vector(114, -85.4, 0), Vector(0, 0, 1), 2.4),  # 3
    Part.Circle(Vector(-110, -31.4, 0), Vector(0, 0, 1), 2.4),  # 4
    Part.Circle(Vector(-110, -85.4, 0), Vector(0, 0, 1), 2.4),  # 5
    Part.Circle(Vector(8.2, -85.4, 0), Vector(0, 0, 1), 2.4),  # 6
    Part.Circle(Vector(-3.8, -85.4, 0), Vector(0, 0, 1), 2.4),  # 7
], False)
sketch10.addConstraint([
    Sketcher.Constraint("Equal", 0, 1),
    Sketcher.Constraint("Equal", 1, 2),
    Sketcher.Constraint("Equal", 2, 3),
    Sketcher.Constraint("Equal", 3, 4),
    Sketcher.Constraint("Equal", 4, 5),
    Sketcher.Constraint("Equal", 5, 6),
    Sketcher.Constraint("Equal", 6, 7),
    Sketcher.Constraint("Horizontal", 0, 3, 1, 3),
    Sketcher.Constraint("Horizontal", 1, 3, 2, 3),
    Sketcher.Constraint("Horizontal", 2, 3, 4, 3),
    Sketcher.Constraint("Horizontal", 3, 3, 5, 3),
    Sketcher.Constraint("Horizontal", 5, 3, 6, 3),
    Sketcher.Constraint("Horizontal", 6, 3, 7, 3),
    Sketcher.Constraint("Vertical", 2, 3, 3, 3),
    Sketcher.Constraint("Vertical", 4, 3, 5, 3),
    Sketcher.Constraint("Vertical", 0, 3, 6, 3),
    Sketcher.Constraint("Vertical", 1, 3, 7, 3),
    Sketcher.Constraint("Diameter", 0, 4.8),
    Sketcher.Constraint("DistanceX", 1, 3, 0, 3, 12.0),
    Sketcher.Constraint("DistanceX", -1, 1, 2, 3, 114.0),
    Sketcher.Constraint("DistanceX", 4, 3, -1, 1, 110.0),
    Sketcher.Constraint("DistanceY", 3, 3, 2, 3, 54.0),
    Sketcher.Constraint("DistanceX", -1, 1, 0, 3, 8.25),
    Sketcher.Constraint("DistanceY", 0, 3, -1, 1, 31.36),
])
pocket8 = doc.addObject("PartDesign::Pocket", "Pocket007")
body.addObject(pocket8)
pocket8.Profile = sketch10
pocket8.Length = 20
pocket8.Reversed = True

# Sketch on XZ plane
sketch11 = doc.addObject("Sketcher::SketchObject", "Sketch010")
body.addObject(sketch11)
sketch11.AttachmentSupport = (doc.XZ_Plane, [""])
sketch11.MapMode = "FlatFace"
sketch11.AttachmentOffset = App.Placement(Vector(0, 0, 35.86), App.Rotation())
sketch11.addGeometry([
    Part.LineSegment(Vector(-93, 1, 0), Vector(-13, 1, 0)),  # 0
    Part.LineSegment(Vector(-13, 1, 0), Vector(-13, 18, 0)),  # 1
    Part.ArcOfCircle(Part.Circle(Vector(-16, 18, 0), Vector(0, 0, 1), 3), math.radians(0), math.radians(90)),  # 2
    Part.LineSegment(Vector(-16, 21, 0), Vector(-90, 21, 0)),  # 3
    Part.ArcOfCircle(Part.Circle(Vector(-90, 18, 0), Vector(0, 0, 1), 3), math.radians(90), math.radians(180)),  # 4
    Part.LineSegment(Vector(-93, 18, 0), Vector(-93, 1, 0)),  # 5
    Part.LineSegment(Vector(17.5, 1, 0), Vector(69.5, 1, 0)),  # 6
    Part.LineSegment(Vector(69.5, 1, 0), Vector(69.5, 18, 0)),  # 7
    Part.ArcOfCircle(Part.Circle(Vector(66.5, 18, 0), Vector(0, 0, 1), 3), math.radians(0), math.radians(90)),  # 8
    Part.LineSegment(Vector(66.5, 21, 0), Vector(20.5, 21, 0)),  # 9
    Part.ArcOfCircle(Part.Circle(Vector(20.5, 18, 0), Vector(0, 0, 1), 3), math.radians(90), math.radians(180)),  # 10
    Part.LineSegment(Vector(17.5, 18, 0), Vector(17.5, 1, 0)),  # 11
], False)
sketch11.addConstraint([
    Sketcher.Constraint("Coincident", 0, 2, 1, 1),
    Sketcher.Constraint("Tangent", 1, 2, 2, 1),
    Sketcher.Constraint("Tangent", 2, 2, 3, 1),
    Sketcher.Constraint("Tangent", 3, 2, 4, 1),
    Sketcher.Constraint("Tangent", 4, 2, 5, 1),
    Sketcher.Constraint("Coincident", 5, 2, 0, 1),
    Sketcher.Constraint("Coincident", 6, 2, 7, 1),
    Sketcher.Constraint("Tangent", 7, 2, 8, 1),
    Sketcher.Constraint("Tangent", 8, 2, 9, 1),
    Sketcher.Constraint("Tangent", 9, 2, 10, 1),
    Sketcher.Constraint("Tangent", 10, 2, 11, 1),
    Sketcher.Constraint("Coincident", 11, 2, 6, 1),
    Sketcher.Constraint("Horizontal", 0),
    Sketcher.Constraint("Vertical", 1),
    Sketcher.Constraint("Horizontal", 3),
    Sketcher.Constraint("Vertical", 5),
    Sketcher.Constraint("Horizontal", 6),
    Sketcher.Constraint("Vertical", 7),
    Sketcher.Constraint("Horizontal", 9),
    Sketcher.Constraint("Vertical", 11),
    Sketcher.Constraint("Equal", 2, 4),
    Sketcher.Constraint("Equal", 4, 8),
    Sketcher.Constraint("Equal", 8, 10),
    Sketcher.Constraint("Horizontal", 4, 3, 8, 3),
    Sketcher.Constraint("Horizontal", 5, 2, 6, 2),
    Sketcher.Constraint("Radius", 2, 3.0),
    Sketcher.Constraint("DistanceX", 0, 1, 0, 2, 80.0),
    Sketcher.Constraint("DistanceX", 6, 1, 6, 2, 52.0),
    Sketcher.Constraint("DistanceX", 1, 2, 10, 2, 30.5),
    Sketcher.Constraint("DistanceY", 1, 1, 1, 2, 17.0),
    Sketcher.Constraint("DistanceX", 2, 3, -1, 1, 16.0),
    Sketcher.Constraint("DistanceY", -1, 1, 2, 3, 18.0),
])
pocket9 = doc.addObject("PartDesign::Pocket", "Pocket008")
body.addObject(pocket9)
pocket9.Profile = sketch11
pocket9.Length = 20

# Sketch on XY plane
sketch12 = doc.addObject("Sketcher::SketchObject", "Sketch011")
body.addObject(sketch12)
sketch12.AttachmentSupport = (doc.XY_Plane, [""])
sketch12.MapMode = "FlatFace"
sketch12.AttachmentOffset = App.Placement(Vector(0, 0, 31), App.Rotation())
add_polygon(sketch12, [(87, 84), (87, -27), (114, -27), (114, 84)])  # lines 0-3
sketch12.addConstraint([
    Sketcher.Constraint("Vertical", 0),
    Sketcher.Constraint("Horizontal", 1),
    Sketcher.Constraint("Vertical", 2),
    Sketcher.Constraint("Horizontal", 3),
    Sketcher.Constraint("DistanceY", 0, 2, 0, 1, 110.76),
    Sketcher.Constraint("DistanceX", 1, 1, 1, 2, 27.958),
    Sketcher.Constraint("DistanceY", -1, 1, 2, 2, 83.9),
    Sketcher.Constraint("DistanceX", -1, 1, 0, 2, 86.501),
])
pocket10 = doc.addObject("PartDesign::Pocket", "Pocket009")
body.addObject(pocket10)
pocket10.Profile = sketch12
pocket10.Length = 20

# Sketch on XY plane
sketch13 = doc.addObject("Sketcher::SketchObject", "Sketch012")
body.addObject(sketch13)
sketch13.AttachmentSupport = (doc.XY_Plane, [""])
sketch13.MapMode = "FlatFace"
sketch13.AttachmentOffset = App.Placement(Vector(0, 0, 11), App.Rotation())
sketch13.addGeometry([
    Part.ArcOfCircle(Part.Circle(Vector(100, -21, 0), Vector(0, 0, 1), 8), math.radians(0), math.radians(180)),  # 0
    Part.LineSegment(Vector(108, -21, 0), Vector(108, -27, 0)),  # 1
    Part.LineSegment(Vector(108, -27, 0), Vector(114, -27, 0)),  # 2
    Part.LineSegment(Vector(114, -27, 0), Vector(114, 84, 0)),  # 3
    Part.LineSegment(Vector(114, 84, 0), Vector(106, 84, 0)),  # 4
    Part.LineSegment(Vector(106, 84, 0), Vector(106, 78, 0)),  # 5
    Part.ArcOfCircle(Part.Circle(Vector(100, 78, 0), Vector(0, 0, 1), 6), math.radians(180), math.radians(360)),  # 6
    Part.LineSegment(Vector(95, 78, 0), Vector(95, 84, 0)),  # 7
    Part.LineSegment(Vector(95, 84, 0), Vector(87, 84, 0)),  # 8
    Part.LineSegment(Vector(87, 84, 0), Vector(87, -27, 0)),  # 9
    Part.LineSegment(Vector(87, -27, 0), Vector(93, -27, 0)),  # 10
    Part.LineSegment(Vector(93, -27, 0), Vector(93, -21, 0)),  # 11
], False)
sketch13.addConstraint([
    Sketcher.Constraint("Tangent", 0, 1, 1, 1),
    Sketcher.Constraint("Coincident", 1, 2, 2, 1),
    Sketcher.Constraint("Coincident", 2, 2, 3, 1),
    Sketcher.Constraint("Coincident", 3, 2, 4, 1),
    Sketcher.Constraint("Coincident", 4, 2, 5, 1),
    Sketcher.Constraint("Tangent", 5, 2, 6, 2),
    Sketcher.Constraint("Tangent", 6, 1, 7, 1),
    Sketcher.Constraint("Coincident", 7, 2, 8, 1),
    Sketcher.Constraint("Coincident", 8, 2, 9, 1),
    Sketcher.Constraint("Coincident", 9, 2, 10, 1),
    Sketcher.Constraint("Coincident", 10, 2, 11, 1),
    Sketcher.Constraint("Tangent", 11, 2, 0, 2),
    Sketcher.Constraint("Vertical", 1),
    Sketcher.Constraint("Horizontal", 2),
    Sketcher.Constraint("Vertical", 3),
    Sketcher.Constraint("Horizontal", 4),
    Sketcher.Constraint("Vertical", 5),
    Sketcher.Constraint("Vertical", 7),
    Sketcher.Constraint("Horizontal", 8),
    Sketcher.Constraint("Vertical", 9),
    Sketcher.Constraint("Horizontal", 10),
    Sketcher.Constraint("Vertical", 11),
    Sketcher.Constraint("Horizontal", 4, 2, 7, 2),
    Sketcher.Constraint("Horizontal", 2, 2, 9, 2),
    Sketcher.Constraint("Vertical", 0, 3, 6, 3),
    Sketcher.Constraint("Equal", 4, 8),
    Sketcher.Constraint("Equal", 1, 5),
    Sketcher.Constraint("Radius", 6, 5.5),
    Sketcher.Constraint("DistanceY", 1, 2, 1, 1, 5.5),
    Sketcher.Constraint("Radius", 0, 7.5),
    Sketcher.Constraint("DistanceY", 3, 1, 3, 2, 110.76),
    Sketcher.Constraint("DistanceY", -1, 1, 6, 3, 78.4),
    Sketcher.Constraint("DistanceX", 2, 1, 2, 2, 6.479),
    Sketcher.Constraint("DistanceX", -1, 1, 0, 3, 100.48),
])
pocket11 = doc.addObject("PartDesign::Pocket", "Pocket010")
body.addObject(pocket11)
pocket11.Profile = sketch13
pocket11.Length = 10

# Sketch on XY plane
sketch14 = doc.addObject("Sketcher::SketchObject", "Sketch013")
body.addObject(sketch14)
sketch14.AttachmentSupport = (doc.XY_Plane, [""])
sketch14.MapMode = "FlatFace"
sketch14.AttachmentOffset = App.Placement(Vector(0, 0, 11), App.Rotation())
sketch14.addGeometry([
    Part.Circle(Vector(100.5, -21.4, 0), Vector(0, 0, 1), 2.4),
    Part.Circle(Vector(100.5, 78.4, 0), Vector(0, 0, 1), 2.4),
], False)
sketch14.addConstraint([
    Sketcher.Constraint("Equal", 0, 1),
    Sketcher.Constraint("Vertical", 0, 3, 1, 3),
    Sketcher.Constraint("Diameter", 0, 4.8),
    Sketcher.Constraint("DistanceY", 0, 3, 1, 3, 99.76),
    Sketcher.Constraint("DistanceY", -1, 1, 1, 3, 78.4),
    Sketcher.Constraint("DistanceX", -1, 1, 0, 3, 100.48),
])
pocket12 = doc.addObject("PartDesign::Pocket", "Pocket011")
body.addObject(pocket12)
pocket12.Profile = sketch14
pocket12.Length = 10

doc.recompute()
